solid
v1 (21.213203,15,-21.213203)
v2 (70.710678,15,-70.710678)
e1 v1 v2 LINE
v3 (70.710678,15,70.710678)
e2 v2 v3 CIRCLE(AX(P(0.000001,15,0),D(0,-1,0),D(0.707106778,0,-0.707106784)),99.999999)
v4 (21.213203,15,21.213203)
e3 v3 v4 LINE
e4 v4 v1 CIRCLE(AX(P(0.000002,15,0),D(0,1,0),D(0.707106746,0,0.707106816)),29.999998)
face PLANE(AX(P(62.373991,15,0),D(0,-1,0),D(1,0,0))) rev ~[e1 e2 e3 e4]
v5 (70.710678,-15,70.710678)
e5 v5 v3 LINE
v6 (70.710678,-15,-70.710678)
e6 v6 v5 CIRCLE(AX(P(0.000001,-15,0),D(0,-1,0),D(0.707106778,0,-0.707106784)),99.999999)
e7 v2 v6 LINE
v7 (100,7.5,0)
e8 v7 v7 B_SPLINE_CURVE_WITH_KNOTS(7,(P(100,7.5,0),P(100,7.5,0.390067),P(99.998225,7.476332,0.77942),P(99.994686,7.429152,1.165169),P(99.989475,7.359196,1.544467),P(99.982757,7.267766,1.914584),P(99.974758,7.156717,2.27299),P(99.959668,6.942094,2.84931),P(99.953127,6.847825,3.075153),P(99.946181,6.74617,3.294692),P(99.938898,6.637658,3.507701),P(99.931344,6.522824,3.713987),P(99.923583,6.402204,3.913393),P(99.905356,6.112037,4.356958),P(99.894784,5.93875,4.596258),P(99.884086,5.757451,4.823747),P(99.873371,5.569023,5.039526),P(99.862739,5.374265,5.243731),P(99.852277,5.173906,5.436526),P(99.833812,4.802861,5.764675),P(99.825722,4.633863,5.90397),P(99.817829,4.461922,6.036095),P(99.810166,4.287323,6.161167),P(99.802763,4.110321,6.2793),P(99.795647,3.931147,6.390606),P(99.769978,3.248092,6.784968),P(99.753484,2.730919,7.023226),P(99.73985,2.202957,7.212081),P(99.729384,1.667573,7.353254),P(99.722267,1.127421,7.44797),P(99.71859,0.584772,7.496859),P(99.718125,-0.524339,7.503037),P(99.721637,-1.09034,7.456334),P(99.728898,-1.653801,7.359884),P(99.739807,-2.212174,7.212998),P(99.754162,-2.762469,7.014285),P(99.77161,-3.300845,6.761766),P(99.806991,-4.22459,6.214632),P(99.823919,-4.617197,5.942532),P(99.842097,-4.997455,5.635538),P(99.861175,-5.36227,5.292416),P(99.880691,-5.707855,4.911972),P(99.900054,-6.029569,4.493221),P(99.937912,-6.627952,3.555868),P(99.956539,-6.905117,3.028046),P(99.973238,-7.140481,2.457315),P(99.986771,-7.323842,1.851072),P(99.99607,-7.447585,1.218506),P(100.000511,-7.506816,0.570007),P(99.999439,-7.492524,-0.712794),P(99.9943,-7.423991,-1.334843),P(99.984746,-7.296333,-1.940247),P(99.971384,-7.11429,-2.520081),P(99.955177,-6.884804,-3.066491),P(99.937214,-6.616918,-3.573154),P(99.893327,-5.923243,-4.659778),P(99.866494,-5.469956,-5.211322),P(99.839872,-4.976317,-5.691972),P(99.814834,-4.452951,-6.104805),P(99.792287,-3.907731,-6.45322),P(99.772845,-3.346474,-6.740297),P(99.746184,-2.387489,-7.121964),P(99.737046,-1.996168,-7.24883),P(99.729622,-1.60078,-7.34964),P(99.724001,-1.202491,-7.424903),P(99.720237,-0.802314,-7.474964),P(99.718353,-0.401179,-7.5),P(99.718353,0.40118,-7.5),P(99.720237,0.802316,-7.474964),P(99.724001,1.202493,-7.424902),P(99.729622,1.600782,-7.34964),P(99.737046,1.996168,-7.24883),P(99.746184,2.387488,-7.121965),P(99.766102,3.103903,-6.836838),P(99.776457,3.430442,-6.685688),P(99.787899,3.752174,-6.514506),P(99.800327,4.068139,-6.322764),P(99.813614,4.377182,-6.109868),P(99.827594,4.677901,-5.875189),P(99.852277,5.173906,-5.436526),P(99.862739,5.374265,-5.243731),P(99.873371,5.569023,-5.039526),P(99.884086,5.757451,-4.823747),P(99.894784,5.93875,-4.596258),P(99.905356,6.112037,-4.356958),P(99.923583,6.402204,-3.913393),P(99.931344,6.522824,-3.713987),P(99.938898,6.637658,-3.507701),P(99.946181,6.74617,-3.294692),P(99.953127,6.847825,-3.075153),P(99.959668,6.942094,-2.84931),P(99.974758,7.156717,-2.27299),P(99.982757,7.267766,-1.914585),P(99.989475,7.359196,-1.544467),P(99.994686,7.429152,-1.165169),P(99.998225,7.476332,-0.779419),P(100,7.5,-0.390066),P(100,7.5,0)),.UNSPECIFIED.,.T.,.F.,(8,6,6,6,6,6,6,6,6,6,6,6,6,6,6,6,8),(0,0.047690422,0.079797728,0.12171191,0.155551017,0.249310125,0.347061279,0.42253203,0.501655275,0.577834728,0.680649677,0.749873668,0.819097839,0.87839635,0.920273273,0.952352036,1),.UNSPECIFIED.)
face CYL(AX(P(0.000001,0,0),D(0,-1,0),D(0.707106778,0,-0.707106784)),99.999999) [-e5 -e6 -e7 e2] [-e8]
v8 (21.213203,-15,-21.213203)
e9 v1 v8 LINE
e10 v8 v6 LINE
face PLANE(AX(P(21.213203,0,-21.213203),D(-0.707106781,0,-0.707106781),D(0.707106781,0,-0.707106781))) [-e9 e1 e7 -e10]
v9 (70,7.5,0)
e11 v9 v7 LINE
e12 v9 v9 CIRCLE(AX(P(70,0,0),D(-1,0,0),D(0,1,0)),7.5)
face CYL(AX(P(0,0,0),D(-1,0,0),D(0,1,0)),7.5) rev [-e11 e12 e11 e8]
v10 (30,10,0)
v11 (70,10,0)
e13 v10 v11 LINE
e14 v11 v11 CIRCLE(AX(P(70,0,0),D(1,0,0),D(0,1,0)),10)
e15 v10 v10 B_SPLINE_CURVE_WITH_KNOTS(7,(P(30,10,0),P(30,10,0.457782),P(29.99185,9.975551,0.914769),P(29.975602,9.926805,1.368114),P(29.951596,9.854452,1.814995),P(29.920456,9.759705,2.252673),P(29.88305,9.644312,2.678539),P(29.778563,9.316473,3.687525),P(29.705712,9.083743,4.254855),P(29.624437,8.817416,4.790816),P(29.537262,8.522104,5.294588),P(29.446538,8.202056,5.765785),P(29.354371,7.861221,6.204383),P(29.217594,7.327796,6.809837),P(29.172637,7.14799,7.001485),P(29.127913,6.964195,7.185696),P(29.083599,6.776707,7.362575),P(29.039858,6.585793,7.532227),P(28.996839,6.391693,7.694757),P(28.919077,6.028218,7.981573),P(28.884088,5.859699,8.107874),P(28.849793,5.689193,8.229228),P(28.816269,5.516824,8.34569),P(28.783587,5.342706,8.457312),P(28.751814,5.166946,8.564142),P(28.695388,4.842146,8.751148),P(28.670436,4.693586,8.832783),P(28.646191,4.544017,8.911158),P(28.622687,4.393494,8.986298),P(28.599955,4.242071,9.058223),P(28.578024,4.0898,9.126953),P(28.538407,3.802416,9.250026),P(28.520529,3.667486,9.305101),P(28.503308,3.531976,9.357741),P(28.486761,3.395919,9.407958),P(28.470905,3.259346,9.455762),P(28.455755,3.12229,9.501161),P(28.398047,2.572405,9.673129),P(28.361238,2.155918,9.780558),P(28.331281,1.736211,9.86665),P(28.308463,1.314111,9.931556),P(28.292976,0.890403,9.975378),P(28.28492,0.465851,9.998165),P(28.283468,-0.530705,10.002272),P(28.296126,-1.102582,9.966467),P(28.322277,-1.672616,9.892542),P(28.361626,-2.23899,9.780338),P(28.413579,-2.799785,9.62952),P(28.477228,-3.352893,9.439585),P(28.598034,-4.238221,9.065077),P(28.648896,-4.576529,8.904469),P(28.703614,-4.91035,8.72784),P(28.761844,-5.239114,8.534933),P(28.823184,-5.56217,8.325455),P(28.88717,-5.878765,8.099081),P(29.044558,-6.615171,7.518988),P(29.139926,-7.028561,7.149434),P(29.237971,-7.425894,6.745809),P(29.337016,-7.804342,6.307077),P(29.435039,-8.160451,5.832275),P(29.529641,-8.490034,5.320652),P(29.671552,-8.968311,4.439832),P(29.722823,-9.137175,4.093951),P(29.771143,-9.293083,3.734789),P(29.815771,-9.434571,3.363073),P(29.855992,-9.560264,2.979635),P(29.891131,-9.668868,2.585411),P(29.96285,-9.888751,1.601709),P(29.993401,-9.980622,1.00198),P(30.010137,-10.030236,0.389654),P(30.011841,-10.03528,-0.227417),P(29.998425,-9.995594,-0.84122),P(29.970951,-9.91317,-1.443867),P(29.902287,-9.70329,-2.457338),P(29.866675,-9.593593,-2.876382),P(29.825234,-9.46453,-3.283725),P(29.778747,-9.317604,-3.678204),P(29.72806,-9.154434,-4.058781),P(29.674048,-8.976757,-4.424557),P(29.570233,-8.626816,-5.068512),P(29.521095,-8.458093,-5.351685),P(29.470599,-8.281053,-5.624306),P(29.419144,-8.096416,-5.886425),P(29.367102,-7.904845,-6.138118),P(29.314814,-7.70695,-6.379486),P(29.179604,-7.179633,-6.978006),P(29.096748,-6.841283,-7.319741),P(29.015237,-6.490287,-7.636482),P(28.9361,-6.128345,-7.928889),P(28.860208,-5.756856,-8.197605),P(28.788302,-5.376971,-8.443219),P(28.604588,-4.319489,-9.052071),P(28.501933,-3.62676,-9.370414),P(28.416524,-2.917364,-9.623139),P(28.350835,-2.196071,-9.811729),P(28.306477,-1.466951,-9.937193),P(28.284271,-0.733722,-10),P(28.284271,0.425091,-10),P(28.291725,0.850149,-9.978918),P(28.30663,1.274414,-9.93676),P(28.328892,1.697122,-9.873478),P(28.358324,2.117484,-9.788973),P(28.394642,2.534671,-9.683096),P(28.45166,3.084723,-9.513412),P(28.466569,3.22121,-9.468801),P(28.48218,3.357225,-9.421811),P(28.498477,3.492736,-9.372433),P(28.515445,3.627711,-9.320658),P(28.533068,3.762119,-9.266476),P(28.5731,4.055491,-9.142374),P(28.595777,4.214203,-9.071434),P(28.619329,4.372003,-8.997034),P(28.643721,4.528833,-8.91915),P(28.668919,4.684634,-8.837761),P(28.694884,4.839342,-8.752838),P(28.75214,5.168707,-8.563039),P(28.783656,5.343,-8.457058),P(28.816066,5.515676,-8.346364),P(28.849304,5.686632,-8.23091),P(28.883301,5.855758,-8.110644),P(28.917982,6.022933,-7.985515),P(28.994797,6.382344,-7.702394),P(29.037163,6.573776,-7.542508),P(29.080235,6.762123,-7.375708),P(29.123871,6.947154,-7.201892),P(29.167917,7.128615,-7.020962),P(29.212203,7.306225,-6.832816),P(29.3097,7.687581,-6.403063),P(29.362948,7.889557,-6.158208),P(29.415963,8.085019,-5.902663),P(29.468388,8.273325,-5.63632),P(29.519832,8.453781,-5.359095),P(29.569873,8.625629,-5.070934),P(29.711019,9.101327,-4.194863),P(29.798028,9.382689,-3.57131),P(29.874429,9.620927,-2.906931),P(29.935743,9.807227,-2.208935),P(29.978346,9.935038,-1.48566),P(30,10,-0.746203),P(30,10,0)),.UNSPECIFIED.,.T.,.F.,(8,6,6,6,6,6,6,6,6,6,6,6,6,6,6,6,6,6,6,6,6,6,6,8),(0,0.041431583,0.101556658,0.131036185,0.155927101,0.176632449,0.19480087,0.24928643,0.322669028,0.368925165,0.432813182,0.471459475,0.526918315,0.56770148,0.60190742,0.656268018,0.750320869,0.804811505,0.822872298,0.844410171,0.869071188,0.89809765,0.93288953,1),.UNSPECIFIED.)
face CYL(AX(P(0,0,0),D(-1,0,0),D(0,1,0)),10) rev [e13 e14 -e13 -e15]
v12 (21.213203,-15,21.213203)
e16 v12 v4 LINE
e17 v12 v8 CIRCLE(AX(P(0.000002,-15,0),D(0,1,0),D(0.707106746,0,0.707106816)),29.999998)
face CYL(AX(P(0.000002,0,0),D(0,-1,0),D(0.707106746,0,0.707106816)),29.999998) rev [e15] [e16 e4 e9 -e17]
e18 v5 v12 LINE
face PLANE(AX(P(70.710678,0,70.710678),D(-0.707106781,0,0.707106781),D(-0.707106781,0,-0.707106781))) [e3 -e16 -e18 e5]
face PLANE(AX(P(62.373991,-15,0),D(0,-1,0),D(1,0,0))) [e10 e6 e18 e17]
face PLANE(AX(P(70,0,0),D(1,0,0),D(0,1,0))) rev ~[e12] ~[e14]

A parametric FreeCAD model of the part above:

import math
import FreeCAD as App
import Part
import Sketcher
from FreeCAD import Vector
Q = App.Units.Quantity

doc = App.newDocument("Part")
params = doc.addObject("Spreadsheet::Sheet", "Params")
for row, (alias, value) in enumerate([
    ("sketch1_radius", "99.999999 mm"),
    ("sketch1_length", "70 mm"),
    ("pad1_length", "30 mm"),
    ("sketch2_diameter", "15 mm"),
    ("pocket1_length", "118.466944 mm"),
    ("sketch3_diameter", "20 mm"),
    ("pocket2_length", "70 mm"),
], start=1):
    params.set(f"A{row}", alias)
    params.set(f"B{row}", "=" + value)
    params.setAlias(f"B{row}", alias)

body = doc.addObject("PartDesign::Body", "Body")

sketch1 = doc.addObject("Sketcher::SketchObject", "Sketch")
body.addObject(sketch1)
sketch1.AttachmentSupport = (doc.XZ_Plane, [""])
sketch1.MapMode = "FlatFace"
sketch1.addGeometry(Part.ArcOfCircle(Part.Circle(Vector(0.000002, 0, 0), Vector(0, 0, 1), 29.999998), math.radians(-45.000003), math.radians(45.000003)), False)
sketch1.addGeometry(Part.LineSegment(Vector(21.213203, -21.213203, 0), Vector(70.710678, -70.710678, 0)), False)
sketch1.addGeometry(Part.ArcOfCircle(Part.Circle(Vector(0.000001, 0, 0), Vector(0, 0, 1), 99.999999), math.radians(-45), math.radians(45)), False)
sketch1.addGeometry(Part.LineSegment(Vector(70.710678, 70.710678, 0), Vector(21.213203, 21.213203, 0)), False)
sketch1.addConstraint(Sketcher.Constraint("Coincident", 0, 1, 1, 1))
sketch1.addConstraint(Sketcher.Constraint("Coincident", 1, 2, 2, 1))
sketch1.addConstraint(Sketcher.Constraint("Coincident", 2, 2, 3, 1))
sketch1.addConstraint(Sketcher.Constraint("Coincident", 3, 2, 0, 2))
sketch1.addConstraint(Sketcher.Constraint("Coincident", 0, 3, -1, 1))
sketch1.addConstraint(Sketcher.Constraint("Coincident", 2, 3, -1, 1))
sketch1.addConstraint(Sketcher.Constraint("Perpendicular", 1, 3))
sketch1.addConstraint(Sketcher.Constraint("Vertical", 1, 2, 2, 2))
sketch1.addConstraint(Sketcher.Constraint("Vertical", 0, 1, 3, 2))
sketch1.addConstraint(Sketcher.Constraint("Radius", 2, Q("99.999999 mm")))
sketch1.addConstraint(Sketcher.Constraint("Distance", 1, Q("70 mm")))
sketch1.addConstraint(Sketcher.Constraint("DistanceX", 0, 3, 0, 1, Q("21.213201 mm")))
sketch1.setExpression("Constraints[9]", "Params.sketch1_radius")
sketch1.setExpression("Constraints[10]", "Params.sketch1_length")
pad1 = doc.addObject("PartDesign::Pad", "Pad")
body.addObject(pad1)
pad1.Profile = sketch1
pad1.setExpression("Length", "Params.pad1_length")
pad1.Midplane = True

sketch2 = doc.addObject("Sketcher::SketchObject", "Sketch001")
body.addObject(sketch2)
sketch2.AttachmentSupport = (doc.YZ_Plane, [""])
sketch2.MapMode = "FlatFace"
sketch2.addGeometry(Part.Circle(Vector(0, 0, 0), Vector(0, 0, 1), 7.5), False)
sketch2.addConstraint(Sketcher.Constraint("Coincident", 0, 3, -1, 1))
sketch2.addConstraint(Sketcher.Constraint("Diameter", 0, Q("15 mm")))
sketch2.setExpression("Constraints[1]", "Params.sketch2_diameter")
pocket1 = doc.addObject("PartDesign::Pocket", "Pocket")
body.addObject(pocket1)
pocket1.Profile = sketch2
pocket1.setExpression("Length", "Params.pocket1_length")
pocket1.Reversed = True

sketch3 = doc.addObject("Sketcher::SketchObject", "Sketch002")
body.addObject(sketch3)
sketch3.AttachmentSupport = (doc.YZ_Plane, [""])
sketch3.MapMode = "FlatFace"
sketch3.addGeometry(Part.Circle(Vector(0, 0, 0), Vector(0, 0, 1), 10), False)
sketch3.addConstraint(Sketcher.Constraint("Coincident", 0, 3, -1, 1))
sketch3.addConstraint(Sketcher.Constraint("Diameter", 0, Q("20 mm")))
sketch3.setExpression("Constraints[1]", "Params.sketch3_diameter")
pocket2 = doc.addObject("PartDesign::Pocket", "Pocket001")
body.addObject(pocket2)
pocket2.Profile = sketch3
pocket2.setExpression("Length", "Params.pocket2_length")
pocket2.Reversed = True

doc.recompute()
